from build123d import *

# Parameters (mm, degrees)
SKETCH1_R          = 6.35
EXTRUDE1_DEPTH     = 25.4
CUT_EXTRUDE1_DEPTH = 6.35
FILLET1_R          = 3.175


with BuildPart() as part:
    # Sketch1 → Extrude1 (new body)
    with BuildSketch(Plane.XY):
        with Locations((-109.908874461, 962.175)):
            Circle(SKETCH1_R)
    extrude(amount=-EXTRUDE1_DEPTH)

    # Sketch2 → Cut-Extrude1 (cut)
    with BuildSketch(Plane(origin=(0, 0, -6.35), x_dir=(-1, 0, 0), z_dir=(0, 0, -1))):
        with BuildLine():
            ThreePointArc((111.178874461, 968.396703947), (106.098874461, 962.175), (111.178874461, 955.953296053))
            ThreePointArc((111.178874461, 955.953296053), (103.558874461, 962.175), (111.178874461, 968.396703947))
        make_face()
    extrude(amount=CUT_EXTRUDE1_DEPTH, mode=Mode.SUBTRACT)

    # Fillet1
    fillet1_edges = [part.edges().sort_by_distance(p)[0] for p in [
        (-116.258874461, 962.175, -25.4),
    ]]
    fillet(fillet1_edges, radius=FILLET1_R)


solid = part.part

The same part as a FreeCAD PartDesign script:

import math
import FreeCAD as App
import Part
import Sketcher
Q = App.Units.Quantity


def edges_at(feature, points):
    """Names of the edges that pass closest to the given points."""
    edges = feature.Shape.Edges
    near = lambda p: min(range(len(edges)), key=lambda i: edges[i].distToShape(Part.Vertex(*p))[0])
    return sorted({f"Edge{near(p) + 1}" for p in points})

doc = App.newDocument("Part")
body = doc.addObject("PartDesign::Body", "Body")

sketch1 = body.newObject("Sketcher::SketchObject", "Sketch")
sketch1.AttachmentSupport = (doc.getObject("XY_Plane"), [""])
sketch1.MapMode = "FlatFace"
sketch1.addGeometry(Part.Circle(App.Vector(-110, 962, 0), App.Vector(0, 0, 1), 6), False)
sketch1.addConstraint(Sketcher.Constraint("Diameter", 0, Q("0.5 in")))
sketch1.addConstraint(Sketcher.Constraint("DistanceY", -1, 1, 0, 3, 962.175))
sketch1.addConstraint(Sketcher.Constraint("DistanceX", 0, 3, -1, 1, 109.908874))
pad1 = body.newObject("PartDesign::Pad", "Pad")
pad1.Profile = sketch1
pad1.Length = Q("1 in")
pad1.Reversed = True

sketch2 = body.newObject("Sketcher::SketchObject", "Sketch001")
sketch2.AttachmentSupport = (doc.getObject("XY_Plane"), [""])
sketch2.MapMode = "FlatFace"
sketch2.AttachmentOffset = App.Placement(App.Vector(0, 0, -0.25 * 25.4), App.Rotation())
sketch2.addGeometry(Part.ArcOfCircle(Part.Circle(App.Vector(-112, 962, 0), App.Vector(0, 0, 1), 6), math.radians(-78), math.radians(78)), False)
sketch2.addGeometry(Part.ArcOfCircle(Part.Circle(App.Vector(-110, 962, 0), App.Vector(0, 0, 1), 6), math.radians(-102), math.radians(102)), False)
sketch2.addConstraint(Sketcher.Constraint("Coincident", 0, 1, 1, 1))
sketch2.addConstraint(Sketcher.Constraint("Coincident", 1, 2, 0, 2))
sketch2.addConstraint(Sketcher.Constraint("Equal", 0, 1))
sketch2.addConstraint(Sketcher.Constraint("Horizontal", 0, 3, 1, 3))
sketch2.addConstraint(Sketcher.Constraint("Radius", 0, Q("0.25 in")))
sketch2.addConstraint(Sketcher.Constraint("DistanceX", 0, 3, 1, 3, Q("0.1 in")))
sketch2.addConstraint(Sketcher.Constraint("DistanceY", -1, 1, 0, 3, 962.175))
sketch2.addConstraint(Sketcher.Constraint("DistanceX", 0, 3, -1, 1, 112.448874))
pocket1 = body.newObject("PartDesign::Pocket", "Pocket")
pocket1.Profile = sketch2
pocket1.Length = Q("0.25 in")
doc.recompute()

fillet = body.newObject("PartDesign::Fillet", "Fillet")
fillet.Base = (pocket1, edges_at(pocket1, [(-116.259, 962.175, -25.4)]))
fillet.Radius = Q("0.125 in")

doc.recompute()
